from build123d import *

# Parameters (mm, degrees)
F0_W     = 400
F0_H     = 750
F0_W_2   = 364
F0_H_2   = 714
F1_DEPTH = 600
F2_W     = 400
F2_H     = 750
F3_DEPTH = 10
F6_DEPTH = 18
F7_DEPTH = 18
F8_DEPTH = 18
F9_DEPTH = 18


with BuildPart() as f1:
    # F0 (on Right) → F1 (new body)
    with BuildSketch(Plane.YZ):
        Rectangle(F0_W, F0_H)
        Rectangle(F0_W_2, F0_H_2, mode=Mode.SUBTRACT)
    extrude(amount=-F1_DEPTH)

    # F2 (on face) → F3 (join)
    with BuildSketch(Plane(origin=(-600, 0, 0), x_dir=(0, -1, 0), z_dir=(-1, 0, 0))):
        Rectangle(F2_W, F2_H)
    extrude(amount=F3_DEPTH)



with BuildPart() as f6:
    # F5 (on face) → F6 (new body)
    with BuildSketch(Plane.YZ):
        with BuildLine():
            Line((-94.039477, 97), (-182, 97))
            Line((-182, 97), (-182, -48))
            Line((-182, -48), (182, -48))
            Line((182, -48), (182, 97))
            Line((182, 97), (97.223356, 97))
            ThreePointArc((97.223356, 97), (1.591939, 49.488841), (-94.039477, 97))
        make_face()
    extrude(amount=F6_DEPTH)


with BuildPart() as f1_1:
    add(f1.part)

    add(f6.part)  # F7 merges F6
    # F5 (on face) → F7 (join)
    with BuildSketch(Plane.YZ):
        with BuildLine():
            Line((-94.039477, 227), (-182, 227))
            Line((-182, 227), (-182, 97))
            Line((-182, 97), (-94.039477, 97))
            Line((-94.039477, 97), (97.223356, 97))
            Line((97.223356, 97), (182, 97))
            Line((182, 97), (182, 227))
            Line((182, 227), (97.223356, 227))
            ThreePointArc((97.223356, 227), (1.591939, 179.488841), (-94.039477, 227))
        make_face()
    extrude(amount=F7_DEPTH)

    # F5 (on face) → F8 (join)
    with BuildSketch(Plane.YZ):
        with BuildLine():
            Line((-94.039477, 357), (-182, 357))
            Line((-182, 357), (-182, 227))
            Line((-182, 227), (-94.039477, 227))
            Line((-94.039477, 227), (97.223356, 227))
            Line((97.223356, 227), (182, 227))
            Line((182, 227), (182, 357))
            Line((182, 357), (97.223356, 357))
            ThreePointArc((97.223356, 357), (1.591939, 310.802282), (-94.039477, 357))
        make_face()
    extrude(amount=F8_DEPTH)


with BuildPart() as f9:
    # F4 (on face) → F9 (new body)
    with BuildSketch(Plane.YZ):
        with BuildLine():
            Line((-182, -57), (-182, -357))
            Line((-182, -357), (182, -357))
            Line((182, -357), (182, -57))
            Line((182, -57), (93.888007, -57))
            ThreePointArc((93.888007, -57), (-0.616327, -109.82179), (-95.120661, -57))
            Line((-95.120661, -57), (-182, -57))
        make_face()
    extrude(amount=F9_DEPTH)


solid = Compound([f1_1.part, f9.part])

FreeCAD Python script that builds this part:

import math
import FreeCAD as App
import Part
import Sketcher
from FreeCAD import Vector
Q = App.Units.Quantity

doc = App.newDocument("Part")
body = doc.addObject("PartDesign::Body", "Body")

# Sketch on YZ plane
sketch1 = body.newObject("Sketcher::SketchObject", "Sketch")
sketch1.AttachmentSupport = (doc.getObject("YZ_Plane"), [""])
sketch1.MapMode = "FlatFace"
sketch1.addGeometry([
    Part.LineSegment(Vector(-200, 375, 0), Vector(-200, -375, 0)),  # 0
    Part.LineSegment(Vector(-200, -375, 0), Vector(200, -375, 0)),  # 1
    Part.LineSegment(Vector(200, -375, 0), Vector(200, 375, 0)),  # 2
    Part.LineSegment(Vector(200, 375, 0), Vector(-200, 375, 0)),  # 3
    Part.LineSegment(Vector(182, -357, 0), Vector(-182, -357, 0)),  # 4
    Part.LineSegment(Vector(-182, -357, 0), Vector(-182, 357, 0)),  # 5
    Part.LineSegment(Vector(-182, 357, 0), Vector(182, 357, 0)),  # 6
    Part.LineSegment(Vector(182, 357, 0), Vector(182, -357, 0)),  # 7
], False)
sketch1.addConstraint([
    Sketcher.Constraint("Coincident", 0, 2, 1, 1),
    Sketcher.Constraint("Coincident", 1, 2, 2, 1),
    Sketcher.Constraint("Coincident", 2, 2, 3, 1),
    Sketcher.Constraint("Coincident", 3, 2, 0, 1),
    Sketcher.Constraint("Coincident", 4, 2, 5, 1),
    Sketcher.Constraint("Coincident", 5, 2, 6, 1),
    Sketcher.Constraint("Coincident", 6, 2, 7, 1),
    Sketcher.Constraint("Coincident", 7, 2, 4, 1),
    Sketcher.Constraint("Vertical", 0),
    Sketcher.Constraint("Horizontal", 1),
    Sketcher.Constraint("Vertical", 2),
    Sketcher.Constraint("Horizontal", 3),
    Sketcher.Constraint("Horizontal", 4),
    Sketcher.Constraint("Vertical", 5),
    Sketcher.Constraint("Horizontal", 6),
    Sketcher.Constraint("Vertical", 7),
    Sketcher.Constraint("Symmetric", 0, 2, 2, 2, -1, 1),
    Sketcher.Constraint("Symmetric", 4, 2, 6, 2, -1, 1),
    Sketcher.Constraint("DistanceX", 1, 1, 1, 2, Q("400 mm")),
    Sketcher.Constraint("DistanceX", 4, 2, 4, 1, Q("364 mm")),
    Sketcher.Constraint("DistanceY", 0, 2, 0, 1, Q("750 mm")),
    Sketcher.Constraint("DistanceY", 5, 1, 5, 2, Q("714 mm")),
])
pad1 = body.newObject("PartDesign::Pad", "Pad")
pad1.Profile = sketch1
pad1.Length = 600
pad1.Reversed = True

# Sketch on YZ plane
sketch2 = body.newObject("Sketcher::SketchObject", "Sketch001")
sketch2.AttachmentSupport = (doc.getObject("YZ_Plane"), [""])
sketch2.MapMode = "FlatFace"
sketch2.AttachmentOffset = App.Placement(Vector(0, 0, -600), App.Rotation())
sketch2.addGeometry([
    Part.LineSegment(Vector(200, 375, 0), Vector(200, -375, 0)),
    Part.LineSegment(Vector(200, -375, 0), Vector(-200, -375, 0)),
    Part.LineSegment(Vector(-200, -375, 0), Vector(-200, 375, 0)),
    Part.LineSegment(Vector(-200, 375, 0), Vector(200, 375, 0)),
], False)
sketch2.addConstraint([
    Sketcher.Constraint("Coincident", 0, 2, 1, 1),
    Sketcher.Constraint("Coincident", 1, 2, 2, 1),
    Sketcher.Constraint("Coincident", 2, 2, 3, 1),
    Sketcher.Constraint("Coincident", 3, 2, 0, 1),
    Sketcher.Constraint("Vertical", 0),
    Sketcher.Constraint("Horizontal", 1),
    Sketcher.Constraint("Vertical", 2),
    Sketcher.Constraint("Horizontal", 3),
    Sketcher.Constraint("Symmetric", 0, 2, 2, 2, -1, 1),
    Sketcher.Constraint("DistanceX", 1, 2, 1, 1, Q("400 mm")),
    Sketcher.Constraint("DistanceY", 0, 2, 0, 1, Q("750 mm")),
])
pad2 = body.newObject("PartDesign::Pad", "Pad001")
pad2.Profile = sketch2
pad2.Length = 10
pad2.Reversed = True
body2 = doc.addObject("PartDesign::Body", "Body001")

# Sketch on YZ plane
sketch3 = body2.newObject("Sketcher::SketchObject", "Sketch002")
sketch3.AttachmentSupport = (doc.getObject("YZ_Plane001"), [""])
sketch3.MapMode = "FlatFace"
sketch3.addGeometry([
    Part.LineSegment(Vector(-94.039477, 97, 0), Vector(-182, 97, 0)),  # 0
    Part.LineSegment(Vector(-182, 97, 0), Vector(-182, -48, 0)),  # 1
    Part.LineSegment(Vector(-182, -48, 0), Vector(182, -48, 0)),  # 2
    Part.LineSegment(Vector(182, -48, 0), Vector(182, 97, 0)),  # 3
    Part.LineSegment(Vector(182, 97, 0), Vector(97.223356, 97, 0)),  # 4
    Part.ArcOfCircle(Part.Circle(Vector(1.59194, 169.48884, 0), Vector(0, 0, 1), 119.999999), math.radians(-142.837787), math.radians(-37.162213)),  # 5
], False)
sketch3.addConstraint([
    Sketcher.Constraint("Coincident", 0, 2, 1, 1),
    Sketcher.Constraint("Coincident", 1, 2, 2, 1),
    Sketcher.Constraint("Coincident", 2, 2, 3, 1),
    Sketcher.Constraint("Coincident", 3, 2, 4, 1),
    Sketcher.Constraint("Coincident", 4, 2, 5, 2),
    Sketcher.Constraint("Coincident", 5, 1, 0, 1),
    Sketcher.Constraint("Horizontal", 0),
    Sketcher.Constraint("Vertical", 1),
    Sketcher.Constraint("Horizontal", 2),
    Sketcher.Constraint("Vertical", 3),
    Sketcher.Constraint("Horizontal", 4),
    Sketcher.Constraint("Symmetric", 0, 2, 3, 2, -2),
    Sketcher.Constraint("Radius", 5, Q("119.999999 mm")),
    Sketcher.Constraint("DistanceX", 2, 1, 2, 2, Q("364 mm")),
    Sketcher.Constraint("DistanceY", 1, 2, 1, 1, Q("145 mm")),
    Sketcher.Constraint("DistanceY", -1, 1, 0, 2, Q("97 mm")),
    Sketcher.Constraint("DistanceX", 0, 2, 0, 1, Q("87.960523 mm")),
    Sketcher.Constraint("DistanceX", 4, 2, 4, 1, Q("84.776644 mm")),
])
pad3 = body2.newObject("PartDesign::Pad", "Pad002")
pad3.Profile = sketch3
pad3.Length = 18
body.AllowCompound = True
doc.recompute()

boolean = body.newObject("PartDesign::Boolean", "Boolean")
boolean.Type = "Fuse"
boolean.addObjects([body2])

# Sketch on YZ plane
sketch4 = body.newObject("Sketcher::SketchObject", "Sketch003")
sketch4.AttachmentSupport = (doc.getObject("YZ_Plane"), [""])
sketch4.MapMode = "FlatFace"
sketch4.addGeometry([
    Part.LineSegment(Vector(-94.039477, 227, 0), Vector(-182, 227, 0)),  # 0
    Part.LineSegment(Vector(-182, 227, 0), Vector(-182, 97, 0)),  # 1
    Part.LineSegment(Vector(-182, 97, 0), Vector(182, 97, 0)),  # 2
    Part.LineSegment(Vector(182, 97, 0), Vector(182, 227, 0)),  # 3
    Part.LineSegment(Vector(182, 227, 0), Vector(97.223356, 227, 0)),  # 4
    Part.ArcOfCircle(Part.Circle(Vector(1.59194, 299.48884, 0), Vector(0, 0, 1), 119.999999), math.radians(-142.837787), math.radians(-37.162213)),  # 5
], False)
sketch4.addConstraint([
    Sketcher.Constraint("Coincident", 0, 2, 1, 1),
    Sketcher.Constraint("Coincident", 1, 2, 2, 1),
    Sketcher.Constraint("Coincident", 2, 2, 3, 1),
    Sketcher.Constraint("Coincident", 3, 2, 4, 1),
    Sketcher.Constraint("Coincident", 4, 2, 5, 2),
    Sketcher.Constraint("Coincident", 5, 1, 0, 1),
    Sketcher.Constraint("Horizontal", 0),
    Sketcher.Constraint("Vertical", 1),
    Sketcher.Constraint("Horizontal", 2),
    Sketcher.Constraint("Vertical", 3),
    Sketcher.Constraint("Horizontal", 4),
    Sketcher.Constraint("Symmetric", 0, 2, 3, 2, -2),
    Sketcher.Constraint("Radius", 5, Q("119.999999 mm")),
    Sketcher.Constraint("DistanceX", 2, 1, 2, 2, Q("364 mm")),
    Sketcher.Constraint("DistanceY", 1, 2, 1, 1, Q("130 mm")),
    Sketcher.Constraint("DistanceY", -1, 1, 0, 2, Q("227 mm")),
    Sketcher.Constraint("DistanceX", 0, 2, 0, 1, Q("87.960523 mm")),
    Sketcher.Constraint("DistanceX", 4, 2, 4, 1, Q("84.776644 mm")),
])
pad4 = body.newObject("PartDesign::Pad", "Pad003")
pad4.Profile = sketch4
pad4.Length = 18

# Sketch on YZ plane
sketch5 = body.newObject("Sketcher::SketchObject", "Sketch004")
sketch5.AttachmentSupport = (doc.getObject("YZ_Plane"), [""])
sketch5.MapMode = "FlatFace"
sketch5.addGeometry([
    Part.LineSegment(Vector(-94.039477, 357, 0), Vector(-182, 357, 0)),  # 0
    Part.LineSegment(Vector(-182, 357, 0), Vector(-182, 227, 0)),  # 1
    Part.LineSegment(Vector(-182, 227, 0), Vector(182, 227, 0)),  # 2
    Part.LineSegment(Vector(182, 227, 0), Vector(182, 357, 0)),  # 3
    Part.LineSegment(Vector(182, 357, 0), Vector(97.223356, 357, 0)),  # 4
    Part.ArcOfCircle(Part.Circle(Vector(1.59194, 432.881872, 0), Vector(0, 0, 1), 122.07959), math.radians(-141.568609), math.radians(-38.431391)),  # 5
], False)
sketch5.addConstraint([
    Sketcher.Constraint("Coincident", 0, 2, 1, 1),
    Sketcher.Constraint("Coincident", 1, 2, 2, 1),
    Sketcher.Constraint("Coincident", 2, 2, 3, 1),
    Sketcher.Constraint("Coincident", 3, 2, 4, 1),
    Sketcher.Constraint("Coincident", 4, 2, 5, 2),
    Sketcher.Constraint("Coincident", 5, 1, 0, 1),
    Sketcher.Constraint("Horizontal", 0),
    Sketcher.Constraint("Vertical", 1),
    Sketcher.Constraint("Horizontal", 2),
    Sketcher.Constraint("Vertical", 3),
    Sketcher.Constraint("Horizontal", 4),
    Sketcher.Constraint("Symmetric", 0, 2, 3, 2, -2),
    Sketcher.Constraint("DistanceX", 2, 1, 2, 2, Q("364 mm")),
    Sketcher.Constraint("DistanceY", 1, 2, 1, 1, Q("130 mm")),
    Sketcher.Constraint("DistanceY", -1, 1, 0, 2, Q("357 mm")),
    Sketcher.Constraint("Radius", 5, Q("122.07959 mm")),
    Sketcher.Constraint("DistanceX", 0, 2, 0, 1, Q("87.960523 mm")),
    Sketcher.Constraint("DistanceX", 4, 2, 4, 1, Q("84.776644 mm")),
])
pad5 = body.newObject("PartDesign::Pad", "Pad004")
pad5.Profile = sketch5
pad5.Length = 18
body3 = doc.addObject("PartDesign::Body", "Body002")

# Sketch on YZ plane
sketch6 = body3.newObject("Sketcher::SketchObject", "Sketch005")
sketch6.AttachmentSupport = (doc.getObject("YZ_Plane002"), [""])
sketch6.MapMode = "FlatFace"
sketch6.addGeometry([
    Part.LineSegment(Vector(-182, -57, 0), Vector(-182, -357, 0)),  # 0
    Part.LineSegment(Vector(-182, -357, 0), Vector(182, -357, 0)),  # 1
    Part.LineSegment(Vector(182, -357, 0), Vector(182, -57, 0)),  # 2
    Part.LineSegment(Vector(182, -57, 0), Vector(93.888007, -57, 0)),  # 3
    Part.ArcOfCircle(Part.Circle(Vector(-0.616327, 1.128735, 0), Vector(0, 0, 1), 110.950525), math.radians(-148.404715), math.radians(-31.595285)),  # 4
    Part.LineSegment(Vector(-95.120661, -57, 0), Vector(-182, -57, 0)),  # 5
], False)
sketch6.addConstraint([
    Sketcher.Constraint("Coincident", 0, 2, 1, 1),
    Sketcher.Constraint("Coincident", 1, 2, 2, 1),
    Sketcher.Constraint("Coincident", 2, 2, 3, 1),
    Sketcher.Constraint("Coincident", 3, 2, 4, 2),
    Sketcher.Constraint("Coincident", 4, 1, 5, 1),
    Sketcher.Constraint("Coincident", 5, 2, 0, 1),
    Sketcher.Constraint("Vertical", 0),
    Sketcher.Constraint("Horizontal", 1),
    Sketcher.Constraint("Vertical", 2),
    Sketcher.Constraint("Horizontal", 3),
    Sketcher.Constraint("Horizontal", 5),
    Sketcher.Constraint("Symmetric", 2, 2, 5, 2, -2),
    Sketcher.Constraint("DistanceX", 1, 1, 1, 2, Q("364 mm")),
    Sketcher.Constraint("DistanceY", 0, 2, 0, 1, Q("300 mm")),
    Sketcher.Constraint("DistanceY", 0, 2, -1, 1, Q("357 mm")),
    Sketcher.Constraint("Radius", 4, Q("110.950525 mm")),
    Sketcher.Constraint("DistanceX", 5, 2, 5, 1, Q("86.879339 mm")),
    Sketcher.Constraint("DistanceX", 3, 2, 3, 1, Q("88.111993 mm")),
])
pad6 = body3.newObject("PartDesign::Pad", "Pad005")
pad6.Profile = sketch6
pad6.Length = 18

doc.recompute()
